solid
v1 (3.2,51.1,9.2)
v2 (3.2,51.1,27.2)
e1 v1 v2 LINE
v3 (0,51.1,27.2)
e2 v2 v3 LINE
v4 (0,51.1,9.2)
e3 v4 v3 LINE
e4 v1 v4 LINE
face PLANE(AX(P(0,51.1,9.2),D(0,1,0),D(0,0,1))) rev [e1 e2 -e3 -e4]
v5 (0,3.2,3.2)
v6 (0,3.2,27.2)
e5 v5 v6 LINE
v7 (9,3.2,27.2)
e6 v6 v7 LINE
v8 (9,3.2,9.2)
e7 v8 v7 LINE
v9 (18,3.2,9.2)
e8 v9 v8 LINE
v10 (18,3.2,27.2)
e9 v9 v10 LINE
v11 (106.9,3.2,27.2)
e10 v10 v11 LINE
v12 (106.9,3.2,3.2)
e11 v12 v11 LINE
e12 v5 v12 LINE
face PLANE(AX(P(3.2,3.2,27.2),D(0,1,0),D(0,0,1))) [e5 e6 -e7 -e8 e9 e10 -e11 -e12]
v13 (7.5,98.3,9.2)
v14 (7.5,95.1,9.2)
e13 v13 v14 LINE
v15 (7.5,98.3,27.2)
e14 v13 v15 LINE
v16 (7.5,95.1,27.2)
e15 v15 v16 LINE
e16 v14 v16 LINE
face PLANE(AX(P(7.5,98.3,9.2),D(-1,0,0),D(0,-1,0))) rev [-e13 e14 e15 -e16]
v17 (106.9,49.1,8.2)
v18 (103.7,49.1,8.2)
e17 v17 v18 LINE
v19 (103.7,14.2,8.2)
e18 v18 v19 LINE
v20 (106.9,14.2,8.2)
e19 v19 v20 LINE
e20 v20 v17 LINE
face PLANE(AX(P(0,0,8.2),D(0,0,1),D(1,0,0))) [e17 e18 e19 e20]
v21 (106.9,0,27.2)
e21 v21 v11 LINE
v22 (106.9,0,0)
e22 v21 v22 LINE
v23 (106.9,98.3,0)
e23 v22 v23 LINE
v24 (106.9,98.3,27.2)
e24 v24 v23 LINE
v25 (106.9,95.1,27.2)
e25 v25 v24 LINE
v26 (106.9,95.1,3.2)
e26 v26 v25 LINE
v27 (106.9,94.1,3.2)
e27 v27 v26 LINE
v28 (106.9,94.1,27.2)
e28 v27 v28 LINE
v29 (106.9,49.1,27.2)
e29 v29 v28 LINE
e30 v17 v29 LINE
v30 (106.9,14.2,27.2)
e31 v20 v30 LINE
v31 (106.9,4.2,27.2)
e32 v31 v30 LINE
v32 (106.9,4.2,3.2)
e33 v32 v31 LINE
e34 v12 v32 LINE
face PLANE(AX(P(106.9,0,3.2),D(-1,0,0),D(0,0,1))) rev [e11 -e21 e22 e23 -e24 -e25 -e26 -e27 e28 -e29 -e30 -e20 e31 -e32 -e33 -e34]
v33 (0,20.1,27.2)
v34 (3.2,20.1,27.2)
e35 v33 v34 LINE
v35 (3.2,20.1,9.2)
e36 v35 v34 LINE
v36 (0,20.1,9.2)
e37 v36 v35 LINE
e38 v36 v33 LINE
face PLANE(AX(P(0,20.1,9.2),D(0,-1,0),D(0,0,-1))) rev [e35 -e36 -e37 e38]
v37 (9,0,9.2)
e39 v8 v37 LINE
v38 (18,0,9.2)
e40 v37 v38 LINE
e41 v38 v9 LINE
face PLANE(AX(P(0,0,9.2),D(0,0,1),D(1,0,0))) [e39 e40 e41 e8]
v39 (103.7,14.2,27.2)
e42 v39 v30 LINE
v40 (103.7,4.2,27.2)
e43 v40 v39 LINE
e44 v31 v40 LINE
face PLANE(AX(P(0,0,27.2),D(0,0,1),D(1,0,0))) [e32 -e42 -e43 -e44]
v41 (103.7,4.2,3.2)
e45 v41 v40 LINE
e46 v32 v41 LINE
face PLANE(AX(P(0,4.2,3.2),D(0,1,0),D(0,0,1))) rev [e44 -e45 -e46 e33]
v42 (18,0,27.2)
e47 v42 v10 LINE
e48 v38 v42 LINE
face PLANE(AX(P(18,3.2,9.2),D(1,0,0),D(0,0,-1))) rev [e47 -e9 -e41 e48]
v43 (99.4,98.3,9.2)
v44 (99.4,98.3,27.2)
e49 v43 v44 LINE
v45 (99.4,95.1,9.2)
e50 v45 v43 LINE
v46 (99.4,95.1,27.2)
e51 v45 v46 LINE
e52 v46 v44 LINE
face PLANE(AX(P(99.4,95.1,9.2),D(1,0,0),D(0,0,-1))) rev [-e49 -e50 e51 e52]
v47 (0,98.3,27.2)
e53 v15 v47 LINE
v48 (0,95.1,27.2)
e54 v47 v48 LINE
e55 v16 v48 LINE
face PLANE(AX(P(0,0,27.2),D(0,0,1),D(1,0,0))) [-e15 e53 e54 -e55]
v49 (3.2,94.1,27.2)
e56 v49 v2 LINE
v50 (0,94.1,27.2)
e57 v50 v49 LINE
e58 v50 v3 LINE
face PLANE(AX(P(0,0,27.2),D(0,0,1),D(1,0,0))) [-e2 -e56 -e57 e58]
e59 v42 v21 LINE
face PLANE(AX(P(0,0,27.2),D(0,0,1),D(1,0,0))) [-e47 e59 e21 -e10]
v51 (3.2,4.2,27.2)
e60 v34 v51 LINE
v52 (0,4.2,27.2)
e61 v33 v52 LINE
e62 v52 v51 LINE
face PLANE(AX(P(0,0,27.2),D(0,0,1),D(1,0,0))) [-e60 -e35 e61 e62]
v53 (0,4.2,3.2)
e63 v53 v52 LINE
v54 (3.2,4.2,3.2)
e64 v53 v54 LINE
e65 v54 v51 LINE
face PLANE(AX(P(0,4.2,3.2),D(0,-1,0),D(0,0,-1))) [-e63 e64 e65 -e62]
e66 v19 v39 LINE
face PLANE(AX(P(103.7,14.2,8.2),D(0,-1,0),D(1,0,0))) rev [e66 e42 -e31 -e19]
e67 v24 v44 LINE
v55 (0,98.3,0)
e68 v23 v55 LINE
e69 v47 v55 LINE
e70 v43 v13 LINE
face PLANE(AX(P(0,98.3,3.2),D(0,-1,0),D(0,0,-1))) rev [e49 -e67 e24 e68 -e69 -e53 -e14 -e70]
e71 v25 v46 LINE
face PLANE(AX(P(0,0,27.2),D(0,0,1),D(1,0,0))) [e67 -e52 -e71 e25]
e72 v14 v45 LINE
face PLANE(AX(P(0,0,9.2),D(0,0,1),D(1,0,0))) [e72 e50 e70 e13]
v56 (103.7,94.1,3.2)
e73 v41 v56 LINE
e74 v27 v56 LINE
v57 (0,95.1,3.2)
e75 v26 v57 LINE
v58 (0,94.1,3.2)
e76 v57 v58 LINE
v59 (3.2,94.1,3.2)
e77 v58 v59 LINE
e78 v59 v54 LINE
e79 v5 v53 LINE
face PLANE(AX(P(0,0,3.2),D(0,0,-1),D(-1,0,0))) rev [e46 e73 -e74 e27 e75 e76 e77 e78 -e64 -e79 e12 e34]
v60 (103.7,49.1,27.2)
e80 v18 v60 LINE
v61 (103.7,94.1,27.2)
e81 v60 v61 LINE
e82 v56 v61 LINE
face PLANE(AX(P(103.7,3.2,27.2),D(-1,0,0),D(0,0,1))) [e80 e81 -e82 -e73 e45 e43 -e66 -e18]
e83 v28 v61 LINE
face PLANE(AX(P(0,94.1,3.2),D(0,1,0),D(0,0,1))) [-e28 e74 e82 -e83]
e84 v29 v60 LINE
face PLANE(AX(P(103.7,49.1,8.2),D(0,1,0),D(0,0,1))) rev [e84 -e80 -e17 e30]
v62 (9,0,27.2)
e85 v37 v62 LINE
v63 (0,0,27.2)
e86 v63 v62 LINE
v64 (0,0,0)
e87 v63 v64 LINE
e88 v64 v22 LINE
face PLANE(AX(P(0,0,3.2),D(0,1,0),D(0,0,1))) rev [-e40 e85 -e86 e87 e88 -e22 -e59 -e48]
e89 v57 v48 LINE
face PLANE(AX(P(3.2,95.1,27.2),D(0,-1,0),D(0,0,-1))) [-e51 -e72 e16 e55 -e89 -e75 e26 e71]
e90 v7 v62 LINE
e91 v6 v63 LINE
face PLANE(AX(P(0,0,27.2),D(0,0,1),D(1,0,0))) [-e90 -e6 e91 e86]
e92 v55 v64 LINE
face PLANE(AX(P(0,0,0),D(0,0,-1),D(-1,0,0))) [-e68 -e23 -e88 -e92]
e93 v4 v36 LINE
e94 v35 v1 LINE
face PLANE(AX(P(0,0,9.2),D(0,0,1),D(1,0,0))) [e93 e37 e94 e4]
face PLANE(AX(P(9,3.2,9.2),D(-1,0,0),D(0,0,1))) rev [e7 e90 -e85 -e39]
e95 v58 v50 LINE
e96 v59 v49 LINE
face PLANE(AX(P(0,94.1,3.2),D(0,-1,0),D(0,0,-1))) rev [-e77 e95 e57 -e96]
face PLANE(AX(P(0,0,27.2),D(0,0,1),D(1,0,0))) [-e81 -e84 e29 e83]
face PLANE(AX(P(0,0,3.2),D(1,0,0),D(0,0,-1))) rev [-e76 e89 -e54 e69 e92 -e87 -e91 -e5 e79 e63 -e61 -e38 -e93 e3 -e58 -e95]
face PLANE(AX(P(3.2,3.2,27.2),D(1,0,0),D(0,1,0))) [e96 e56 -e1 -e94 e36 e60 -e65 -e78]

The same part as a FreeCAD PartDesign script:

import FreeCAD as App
import Part
import Sketcher
from FreeCAD import Vector


def add_polygon(sketch, points):
    """Adds a closed chain of lines whose ends are joined by coincident constraints."""
    first, n = sketch.GeometryCount, len(points)
    for a, b in zip(points, points[1:] + points[:1]):
        sketch.addGeometry(Part.LineSegment(App.Vector(*a, 0), App.Vector(*b, 0)), False)
    for i in range(n):
        sketch.addConstraint(Sketcher.Constraint("Coincident", first + i, 2, first + (i + 1) % n, 1))

doc = App.newDocument("Part")
body = doc.addObject("PartDesign::Body", "Body")

sketch1 = body.newObject("Sketcher::SketchObject", "Sketch")
sketch1.AttachmentSupport = (doc.getObject("XY_Plane"), [""])
sketch1.MapMode = "FlatFace"
add_polygon(sketch1, [(0, 98.3), (0, 0), (106.9, 0), (106.9, 98.3)])
sketch1.addConstraint([
    Sketcher.Constraint("Vertical", 0),
    Sketcher.Constraint("Horizontal", 1),
    Sketcher.Constraint("Vertical", 2),
    Sketcher.Constraint("Horizontal", 3),
    Sketcher.Constraint("Coincident", 0, 2, -1, 1),
    Sketcher.Constraint("DistanceX", 1, 1, 1, 2, 106.9),
    Sketcher.Constraint("DistanceY", 0, 2, 0, 1, 98.3),
])
pad1 = body.newObject("PartDesign::Pad", "Pad")
pad1.Profile = sketch1
pad1.Length = 3.2

sketch2 = body.newObject("Sketcher::SketchObject", "Sketch001")
sketch2.AttachmentSupport = (doc.getObject("XY_Plane"), [""])
sketch2.MapMode = "FlatFace"
sketch2.AttachmentOffset = App.Placement(Vector(0, 0, 3.2), App.Rotation())
add_polygon(sketch2, [(0, 98.3), (0, 0), (106.9, 0), (106.9, 98.3)])
add_polygon(sketch2, [(103.7, 3.2), (3.2, 3.2), (3.2, 95.1), (103.7, 95.1)])
sketch2.addConstraint([
    Sketcher.Constraint("Vertical", 0),
    Sketcher.Constraint("Horizontal", 1),
    Sketcher.Constraint("Vertical", 2),
    Sketcher.Constraint("Horizontal", 3),
    Sketcher.Constraint("Horizontal", 4),
    Sketcher.Constraint("Vertical", 5),
    Sketcher.Constraint("Horizontal", 6),
    Sketcher.Constraint("Vertical", 7),
    Sketcher.Constraint("Coincident", 0, 2, -1, 1),
    Sketcher.Constraint("DistanceX", 1, 1, 1, 2, 106.9),
    Sketcher.Constraint("DistanceX", 4, 2, 4, 1, 100.5),
    Sketcher.Constraint("DistanceY", 0, 2, 0, 1, 98.3),
    Sketcher.Constraint("DistanceY", 5, 1, 5, 2, 91.9),
    Sketcher.Constraint("DistanceX", -1, 1, 4, 2, 3.2),
    Sketcher.Constraint("DistanceY", -1, 1, 4, 2, 3.2),
])
pad2 = body.newObject("PartDesign::Pad", "Pad001")
pad2.Profile = sketch2
pad2.Length = 24

sketch3 = body.newObject("Sketcher::SketchObject", "Sketch002")
sketch3.AttachmentSupport = (doc.getObject("XY_Plane"), [""])
sketch3.MapMode = "FlatFace"
sketch3.AttachmentOffset = App.Placement(Vector(0, 0, 27.2), App.Rotation())
add_polygon(sketch3, [(0, 95.1), (0, 94.1), (3.2, 94.1), (3.2, 95.1)])
add_polygon(sketch3, [(103.7, 95.1), (103.7, 94.1), (106.9, 94.1), (106.9, 95.1)])
add_polygon(sketch3, [(103.7, 4.2), (103.7, 3.2), (106.9, 3.2), (106.9, 4.2)])
add_polygon(sketch3, [(0, 4.2), (0, 3.2), (3.2, 3.2), (3.2, 4.2)])
sketch3.addConstraint([
    Sketcher.Constraint("Vertical", 0),
    Sketcher.Constraint("Horizontal", 1),
    Sketcher.Constraint("Vertical", 2),
    Sketcher.Constraint("Horizontal", 3),
    Sketcher.Constraint("Vertical", 4),
    Sketcher.Constraint("Horizontal", 5),
    Sketcher.Constraint("Vertical", 6),
    Sketcher.Constraint("Horizontal", 7),
    Sketcher.Constraint("Vertical", 8),
    Sketcher.Constraint("Horizontal", 9),
    Sketcher.Constraint("Vertical", 10),
    Sketcher.Constraint("Horizontal", 11),
    Sketcher.Constraint("Vertical", 12),
    Sketcher.Constraint("Horizontal", 13),
    Sketcher.Constraint("Vertical", 14),
    Sketcher.Constraint("Horizontal", 15),
    Sketcher.Constraint("PointOnObject", 0, 2, -2),
    Sketcher.Constraint("PointOnObject", 12, 2, -2),
    Sketcher.Constraint("Horizontal", 1, 2, 4, 2),
    Sketcher.Constraint("Horizontal", 3, 2, 6, 2),
    Sketcher.Constraint("Horizontal", 9, 2, 12, 2),
    Sketcher.Constraint("Horizontal", 11, 2, 14, 2),
    Sketcher.Constraint("Vertical", 7, 2, 8, 2),
    Sketcher.Constraint("Vertical", 6, 2, 9, 2),
    Sketcher.Constraint("Vertical", 2, 2, 13, 2),
    Sketcher.Constraint("Equal", 3, 5),
    Sketcher.Constraint("Equal", 6, 8),
    Sketcher.Constraint("DistanceY", 0, 2, 0, 1, 1.0),
    Sketcher.Constraint("DistanceX", 1, 1, 1, 2, 3.2),
    Sketcher.Constraint("DistanceY", -1, 1, 0, 2, 94.1),
    Sketcher.Constraint("DistanceX", -1, 1, 4, 2, 103.7),
    Sketcher.Constraint("DistanceY", -1, 1, 8, 2, 3.2),
])
pocket1 = body.newObject("PartDesign::Pocket", "Pocket")
pocket1.Profile = sketch3
pocket1.Length = 24

sketch4 = body.newObject("Sketcher::SketchObject", "Sketch003")
sketch4.AttachmentSupport = (doc.getObject("XY_Plane"), [""])
sketch4.MapMode = "FlatFace"
sketch4.AttachmentOffset = App.Placement(Vector(0, 0, 27.2), App.Rotation())
add_polygon(sketch4, [(0, 51.1), (0, 20.1), (3.2, 20.1), (3.2, 51.1)])
sketch4.addConstraint([
    Sketcher.Constraint("Vertical", 0),
    Sketcher.Constraint("Horizontal", 1),
    Sketcher.Constraint("Vertical", 2),
    Sketcher.Constraint("Horizontal", 3),
    Sketcher.Constraint("PointOnObject", 0, 2, -2),
    Sketcher.Constraint("DistanceY", 0, 2, 0, 1, 31.0),
    Sketcher.Constraint("DistanceX", 1, 1, 1, 2, 3.2),
    Sketcher.Constraint("DistanceY", -1, 1, 0, 2, 20.1),
])
pocket2 = body.newObject("PartDesign::Pocket", "Pocket001")
pocket2.Profile = sketch4
pocket2.Length = 18

sketch5 = body.newObject("Sketcher::SketchObject", "Sketch004")
sketch5.AttachmentSupport = (doc.getObject("XY_Plane"), [""])
sketch5.MapMode = "FlatFace"
sketch5.AttachmentOffset = App.Placement(Vector(0, 0, 27.2), App.Rotation())
add_polygon(sketch5, [(7.5, 98.3), (7.5, 95.1), (99.4, 95.1), (99.4, 98.3)])
sketch5.addConstraint([
    Sketcher.Constraint("Vertical", 0),
    Sketcher.Constraint("Horizontal", 1),
    Sketcher.Constraint("Vertical", 2),
    Sketcher.Constraint("Horizontal", 3),
    Sketcher.Constraint("DistanceX", 1, 1, 1, 2, 91.9),
    Sketcher.Constraint("DistanceY", 0, 2, 0, 1, 3.2),
    Sketcher.Constraint("DistanceX", -1, 1, 0, 2, 7.5),
    Sketcher.Constraint("DistanceY", -1, 1, 0, 2, 95.1),
])
pocket3 = body.newObject("PartDesign::Pocket", "Pocket002")
pocket3.Profile = sketch5
pocket3.Length = 18

sketch6 = body.newObject("Sketcher::SketchObject", "Sketch005")
sketch6.AttachmentSupport = (doc.getObject("XY_Plane"), [""])
sketch6.MapMode = "FlatFace"
sketch6.AttachmentOffset = App.Placement(Vector(0, 0, 27.2), App.Rotation())
add_polygon(sketch6, [(103.7, 49.1), (103.7, 14.2), (106.9, 14.2), (106.9, 49.1)])
sketch6.addConstraint([
    Sketcher.Constraint("Vertical", 0),
    Sketcher.Constraint("Horizontal", 1),
    Sketcher.Constraint("Vertical", 2),
    Sketcher.Constraint("Horizontal", 3),
    Sketcher.Constraint("DistanceX", 1, 1, 1, 2, 3.2),
    Sketcher.Constraint("DistanceY", 0, 2, 0, 1, 34.9),
    Sketcher.Constraint("DistanceX", -1, 1, 0, 2, 103.7),
    Sketcher.Constraint("DistanceY", -1, 1, 0, 2, 14.2),
])
pocket4 = body.newObject("PartDesign::Pocket", "Pocket003")
pocket4.Profile = sketch6
pocket4.Length = 19

sketch7 = body.newObject("Sketcher::SketchObject", "Sketch006")
sketch7.AttachmentSupport = (doc.getObject("XY_Plane"), [""])
sketch7.MapMode = "FlatFace"
sketch7.AttachmentOffset = App.Placement(Vector(0, 0, 27.2), App.Rotation())
add_polygon(sketch7, [(9, 3.2), (9, 0), (18, 0), (18, 3.2)])
sketch7.addConstraint([
    Sketcher.Constraint("Vertical", 0),
    Sketcher.Constraint("Horizontal", 1),
    Sketcher.Constraint("Vertical", 2),
    Sketcher.Constraint("Horizontal", 3),
    Sketcher.Constraint("PointOnObject", 0, 2, -1),
    Sketcher.Constraint("DistanceX", 1, 1, 1, 2, 9.0),
    Sketcher.Constraint("DistanceY", 0, 2, 0, 1, 3.2),
    Sketcher.Constraint("DistanceX", -1, 1, 0, 2, 9.0),
])
pocket5 = body.newObject("PartDesign::Pocket", "Pocket004")
pocket5.Profile = sketch7
pocket5.Length = 18

doc.recompute()
